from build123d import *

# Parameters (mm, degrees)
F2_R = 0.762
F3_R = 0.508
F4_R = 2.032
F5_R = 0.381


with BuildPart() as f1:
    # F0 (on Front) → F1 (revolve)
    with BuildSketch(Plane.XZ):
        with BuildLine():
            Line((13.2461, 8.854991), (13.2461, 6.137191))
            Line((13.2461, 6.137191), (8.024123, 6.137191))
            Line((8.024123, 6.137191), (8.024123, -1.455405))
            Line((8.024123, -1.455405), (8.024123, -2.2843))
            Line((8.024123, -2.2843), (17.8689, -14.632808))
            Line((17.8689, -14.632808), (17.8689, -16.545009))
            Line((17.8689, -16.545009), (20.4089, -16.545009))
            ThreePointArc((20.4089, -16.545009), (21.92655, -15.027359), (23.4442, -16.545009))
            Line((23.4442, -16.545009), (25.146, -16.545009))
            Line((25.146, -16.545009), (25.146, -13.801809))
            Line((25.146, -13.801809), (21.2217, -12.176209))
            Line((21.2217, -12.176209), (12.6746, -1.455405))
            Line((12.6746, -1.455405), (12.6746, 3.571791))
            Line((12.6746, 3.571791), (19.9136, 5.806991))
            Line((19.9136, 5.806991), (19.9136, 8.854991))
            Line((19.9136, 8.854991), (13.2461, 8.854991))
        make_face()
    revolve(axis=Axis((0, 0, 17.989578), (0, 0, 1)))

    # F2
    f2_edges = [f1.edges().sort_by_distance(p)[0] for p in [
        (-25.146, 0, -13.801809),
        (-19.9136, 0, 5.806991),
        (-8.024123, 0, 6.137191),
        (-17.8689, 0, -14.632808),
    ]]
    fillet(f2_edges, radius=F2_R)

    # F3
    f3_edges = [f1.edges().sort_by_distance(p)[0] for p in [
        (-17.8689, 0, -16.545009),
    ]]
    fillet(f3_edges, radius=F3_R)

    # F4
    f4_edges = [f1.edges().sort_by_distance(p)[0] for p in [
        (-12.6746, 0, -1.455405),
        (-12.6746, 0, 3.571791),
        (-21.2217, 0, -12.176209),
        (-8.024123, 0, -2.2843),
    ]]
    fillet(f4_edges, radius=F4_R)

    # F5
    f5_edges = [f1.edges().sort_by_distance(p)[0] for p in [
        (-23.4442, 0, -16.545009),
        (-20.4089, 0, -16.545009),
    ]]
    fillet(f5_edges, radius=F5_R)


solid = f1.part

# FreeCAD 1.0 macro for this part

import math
import FreeCAD as App
import Part
import Sketcher
Q = App.Units.Quantity


def edges_at(feature, points):
    """Names of the edges that pass closest to the given points."""
    edges = feature.Shape.Edges
    near = lambda p: min(range(len(edges)), key=lambda i: edges[i].distToShape(Part.Vertex(*p))[0])
    return sorted({f"Edge{near(p) + 1}" for p in points})

doc = App.newDocument("Part")
body = doc.addObject("PartDesign::Body", "Body")

sketch1 = body.newObject("Sketcher::SketchObject", "Sketch")
sketch1.AttachmentSupport = (doc.getObject("XZ_Plane"), [""])
sketch1.MapMode = "FlatFace"
sketch1.addGeometry(Part.LineSegment(App.Vector(13.2, 8.9, 0), App.Vector(13.2, 6.1, 0)), False)
sketch1.addGeometry(Part.LineSegment(App.Vector(13.2, 6.1, 0), App.Vector(8, 6.1, 0)), False)
sketch1.addGeometry(Part.LineSegment(App.Vector(8, 6.1, 0), App.Vector(8, -2.3, 0)), False)
sketch1.addGeometry(Part.LineSegment(App.Vector(8, -2.3, 0), App.Vector(17.9, -14.6, 0)), False)
sketch1.addGeometry(Part.LineSegment(App.Vector(17.9, -14.6, 0), App.Vector(17.9, -16.5, 0)), False)
sketch1.addGeometry(Part.LineSegment(App.Vector(17.9, -16.5, 0), App.Vector(20.4, -16.5, 0)), False)
sketch1.addGeometry(Part.ArcOfCircle(Part.Circle(App.Vector(21.9, -16.5, 0), App.Vector(0, 0, 1), 1.5), math.radians(0), math.radians(180)), False)
sketch1.addGeometry(Part.LineSegment(App.Vector(23.4, -16.5, 0), App.Vector(25.1, -16.5, 0)), False)
sketch1.addGeometry(Part.LineSegment(App.Vector(25.1, -16.5, 0), App.Vector(25.1, -13.8, 0)), False)
sketch1.addGeometry(Part.LineSegment(App.Vector(25.1, -13.8, 0), App.Vector(21.2, -12.2, 0)), False)
sketch1.addGeometry(Part.LineSegment(App.Vector(21.2, -12.2, 0), App.Vector(12.7, -1.5, 0)), False)
sketch1.addGeometry(Part.LineSegment(App.Vector(12.7, -1.5, 0), App.Vector(12.7, 3.6, 0)), False)
sketch1.addGeometry(Part.LineSegment(App.Vector(12.7, 3.6, 0), App.Vector(19.9, 5.8, 0)), False)
sketch1.addGeometry(Part.LineSegment(App.Vector(19.9, 5.8, 0), App.Vector(19.9, 8.9, 0)), False)
sketch1.addGeometry(Part.LineSegment(App.Vector(19.9, 8.9, 0), App.Vector(13.2, 8.9, 0)), False)
sketch1.addConstraint(Sketcher.Constraint("Coincident", 0, 2, 1, 1))
sketch1.addConstraint(Sketcher.Constraint("Coincident", 1, 2, 2, 1))
sketch1.addConstraint(Sketcher.Constraint("Coincident", 2, 2, 3, 1))
sketch1.addConstraint(Sketcher.Constraint("Coincident", 3, 2, 4, 1))
sketch1.addConstraint(Sketcher.Constraint("Coincident", 4, 2, 5, 1))
sketch1.addConstraint(Sketcher.Constraint("Coincident", 5, 2, 6, 2))
sketch1.addConstraint(Sketcher.Constraint("Coincident", 6, 1, 7, 1))
sketch1.addConstraint(Sketcher.Constraint("Coincident", 7, 2, 8, 1))
sketch1.addConstraint(Sketcher.Constraint("Coincident", 8, 2, 9, 1))
sketch1.addConstraint(Sketcher.Constraint("Coincident", 9, 2, 10, 1))
sketch1.addConstraint(Sketcher.Constraint("Coincident", 10, 2, 11, 1))
sketch1.addConstraint(Sketcher.Constraint("Coincident", 11, 2, 12, 1))
sketch1.addConstraint(Sketcher.Constraint("Coincident", 12, 2, 13, 1))
sketch1.addConstraint(Sketcher.Constraint("Coincident", 13, 2, 14, 1))
sketch1.addConstraint(Sketcher.Constraint("Coincident", 14, 2, 0, 1))
sketch1.addConstraint(Sketcher.Constraint("Vertical", 0))
sketch1.addConstraint(Sketcher.Constraint("Horizontal", 1))
sketch1.addConstraint(Sketcher.Constraint("Vertical", 2))
sketch1.addConstraint(Sketcher.Constraint("Vertical", 4))
sketch1.addConstraint(Sketcher.Constraint("Horizontal", 5))
sketch1.addConstraint(Sketcher.Constraint("Horizontal", 7))
sketch1.addConstraint(Sketcher.Constraint("Vertical", 8))
sketch1.addConstraint(Sketcher.Constraint("Vertical", 11))
sketch1.addConstraint(Sketcher.Constraint("Vertical", 13))
sketch1.addConstraint(Sketcher.Constraint("Horizontal", 14))
sketch1.addConstraint(Sketcher.Constraint("Parallel", 3, 10))
sketch1.addConstraint(Sketcher.Constraint("Horizontal", 6, 3, 4, 2))
sketch1.addConstraint(Sketcher.Constraint("Horizontal", 5, 2, 6, 1))
sketch1.addConstraint(Sketcher.Constraint("DistanceX", 5, 1, 5, 2, Q("0.1 in")))
sketch1.addConstraint(Sketcher.Constraint("DistanceY", 13, 1, 13, 2, Q("0.12 in")))
sketch1.addConstraint(Sketcher.Constraint("DistanceX", 7, 1, 7, 2, Q("0.067 in")))
sketch1.addConstraint(Sketcher.Constraint("DistanceY", 0, 2, 0, 1, Q("0.107 in")))
sketch1.addConstraint(Sketcher.Constraint("DistanceY", 8, 1, 8, 2, Q("0.108 in")))
sketch1.addConstraint(Sketcher.Constraint("DistanceX", -1, 1, 7, 2, Q("0.99 in")))
sketch1.addConstraint(Sketcher.Constraint("DistanceY", 9, 2, 11, 2, Q("0.62 in")))
sketch1.addConstraint(Sketcher.Constraint("DistanceX", 14, 2, 14, 1, Q("0.2625 in")))
sketch1.addConstraint(Sketcher.Constraint("DistanceX", -1, 1, 10, 2, Q("0.499 in")))
sketch1.addConstraint(Sketcher.Constraint("DistanceX", -1, 1, 12, 2, Q("0.784 in")))
sketch1.addConstraint(Sketcher.Constraint("Radius", 6, 1.51765))
sketch1.addConstraint(Sketcher.Constraint("DistanceY", 6, 3, 0, 2, Q("0.893 in")))
sketch1.addConstraint(Sketcher.Constraint("DistanceX", 3, 2, 9, 2, Q("0.132 in")))
sketch1.addConstraint(Sketcher.Constraint("DistanceY", 8, 2, 9, 2, Q("0.064 in")))
sketch1.addConstraint(Sketcher.Constraint("DistanceY", 4, 2, 4, 1, 1.912201))
sketch1.addConstraint(Sketcher.Constraint("DistanceY", 2, 2, 2, 1, 8.421491))
sketch1.addConstraint(Sketcher.Constraint("DistanceY", 2, 2, -1, 1, 2.2843))
sketch1.addConstraint(Sketcher.Constraint("Distance", 3, 15.792571))
revolution = body.newObject("PartDesign::Revolution", "Revolution")
revolution.Profile = sketch1
revolution.ReferenceAxis = (sketch1, ["V_Axis"])
revolution.Angle = 360
doc.recompute()

fillet = body.newObject("PartDesign::Fillet", "Fillet")
fillet.Base = (revolution, edges_at(revolution, [
    (-25.146, 0, -13.802),
    (-19.914, 0, 5.807),
    (-8.024, 0, 6.137),
    (-17.869, 0, -14.633),
]))
fillet.Radius = Q("0.03 in")
doc.recompute()

fillet2 = body.newObject("PartDesign::Fillet", "Fillet001")
fillet2.Base = (fillet, edges_at(fillet, [(-17.869, 0, -16.545)]))
fillet2.Radius = Q("0.02 in")
doc.recompute()

fillet3 = body.newObject("PartDesign::Fillet", "Fillet002")
fillet3.Base = (fillet2, edges_at(fillet2, [
    (-12.675, 0, -1.455),
    (-12.675, 0, 3.572),
    (-21.222, 0, -12.176),
    (-8.024, 0, -2.284),
]))
fillet3.Radius = Q("0.08 in")
doc.recompute()

fillet4 = body.newObject("PartDesign::Fillet", "Fillet003")
fillet4.Base = (fillet3, edges_at(fillet3, [(-23.444, 0, -16.545), (-20.409, 0, -16.545)]))
fillet4.Radius = Q("0.015 in")

doc.recompute()
